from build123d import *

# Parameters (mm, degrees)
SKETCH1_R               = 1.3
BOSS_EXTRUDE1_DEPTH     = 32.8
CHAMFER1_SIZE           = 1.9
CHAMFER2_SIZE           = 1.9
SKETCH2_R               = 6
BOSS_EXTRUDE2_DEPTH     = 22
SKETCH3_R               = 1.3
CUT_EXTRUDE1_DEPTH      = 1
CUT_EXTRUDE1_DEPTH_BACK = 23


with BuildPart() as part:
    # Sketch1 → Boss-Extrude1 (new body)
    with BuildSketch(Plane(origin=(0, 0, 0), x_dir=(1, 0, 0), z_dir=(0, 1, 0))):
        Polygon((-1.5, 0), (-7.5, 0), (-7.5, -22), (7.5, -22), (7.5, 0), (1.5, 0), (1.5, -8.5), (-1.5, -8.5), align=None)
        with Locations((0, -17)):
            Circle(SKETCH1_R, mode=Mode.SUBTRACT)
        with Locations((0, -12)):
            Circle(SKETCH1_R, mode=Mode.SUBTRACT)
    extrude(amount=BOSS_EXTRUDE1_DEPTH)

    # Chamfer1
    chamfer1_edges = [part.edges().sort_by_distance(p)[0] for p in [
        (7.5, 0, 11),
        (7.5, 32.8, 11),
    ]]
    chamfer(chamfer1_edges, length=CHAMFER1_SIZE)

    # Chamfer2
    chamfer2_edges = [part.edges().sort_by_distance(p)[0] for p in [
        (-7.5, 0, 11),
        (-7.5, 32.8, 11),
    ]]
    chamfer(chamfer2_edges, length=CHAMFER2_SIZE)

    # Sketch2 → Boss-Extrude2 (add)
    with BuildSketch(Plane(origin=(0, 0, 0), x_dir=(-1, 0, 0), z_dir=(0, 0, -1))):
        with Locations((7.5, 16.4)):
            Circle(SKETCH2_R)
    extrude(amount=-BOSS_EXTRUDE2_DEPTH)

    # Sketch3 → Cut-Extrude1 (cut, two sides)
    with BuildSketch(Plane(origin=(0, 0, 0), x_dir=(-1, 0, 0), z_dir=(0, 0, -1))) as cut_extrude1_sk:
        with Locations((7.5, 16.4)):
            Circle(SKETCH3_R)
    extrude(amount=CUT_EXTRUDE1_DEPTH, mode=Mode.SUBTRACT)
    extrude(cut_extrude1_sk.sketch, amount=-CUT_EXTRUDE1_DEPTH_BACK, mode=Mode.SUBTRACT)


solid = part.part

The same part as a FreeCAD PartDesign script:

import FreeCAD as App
import Part
import Sketcher

V = App.Vector


def edges_at(feature, points):
    """Names of the edges that pass closest to the given points."""
    edges = feature.Shape.Edges
    near = lambda p: min(range(len(edges)), key=lambda i: edges[i].distToShape(Part.Vertex(*p))[0])
    return sorted({f"Edge{near(p) + 1}" for p in points})

doc = App.newDocument("Part")
params = doc.addObject("Spreadsheet::Sheet", "Params")
for row, (alias, value) in enumerate([
    ("sketch1_diameter", "2.6 mm"),
    ("sketch1_width", "6 mm"),
    ("sketch1_width2", "15 mm"),
    ("sketch1_height", "22 mm"),
    ("sketch1_height2", "8.5 mm"),
    ("pad1_length", "32.8 mm"),
    ("chamfer_size", "1.9 mm"),
    ("chamfer2_size", "1.9 mm"),
    ("sketch2_diameter", "12 mm"),
    ("pad2_length", "22 mm"),
    ("sketch3_diameter", "2.6 mm"),
], start=1):
    params.set(f"A{row}", alias)
    params.set(f"B{row}", "=" + value)
    params.setAlias(f"B{row}", alias)

body = doc.addObject("PartDesign::Body", "Body")

sketch1 = doc.addObject("Sketcher::SketchObject", "Sketch")
body.addObject(sketch1)
sketch1.AttachmentSupport = (doc.XZ_Plane, [""])
sketch1.MapMode = "FlatFace"
sketch1.addGeometry(Part.LineSegment(V(-1.5, 0, 0), V(-7.5, 0, 0)), False)
sketch1.addGeometry(Part.LineSegment(V(-7.5, 0, 0), V(-7.5, 22, 0)), False)
sketch1.addGeometry(Part.LineSegment(V(-7.5, 22, 0), V(7.5, 22, 0)), False)
sketch1.addGeometry(Part.LineSegment(V(7.5, 22, 0), V(7.5, 0, 0)), False)
sketch1.addGeometry(Part.LineSegment(V(7.5, 0, 0), V(1.5, 0, 0)), False)
sketch1.addGeometry(Part.LineSegment(V(1.5, 0, 0), V(1.5, 8.5, 0)), False)
sketch1.addGeometry(Part.LineSegment(V(1.5, 8.5, 0), V(-1.5, 8.5, 0)), False)
sketch1.addGeometry(Part.LineSegment(V(-1.5, 8.5, 0), V(-1.5, 0, 0)), False)
sketch1.addGeometry(Part.Circle(V(0, 17, 0), V(0, 0, 1), 1.3), False)
sketch1.addGeometry(Part.Circle(V(0, 12, 0), V(0, 0, 1), 1.3), False)
sketch1.addConstraint(Sketcher.Constraint("Coincident", 0, 2, 1, 1))
sketch1.addConstraint(Sketcher.Constraint("Coincident", 1, 2, 2, 1))
sketch1.addConstraint(Sketcher.Constraint("Coincident", 2, 2, 3, 1))
sketch1.addConstraint(Sketcher.Constraint("Coincident", 3, 2, 4, 1))
sketch1.addConstraint(Sketcher.Constraint("Coincident", 4, 2, 5, 1))
sketch1.addConstraint(Sketcher.Constraint("Coincident", 5, 2, 6, 1))
sketch1.addConstraint(Sketcher.Constraint("Coincident", 6, 2, 7, 1))
sketch1.addConstraint(Sketcher.Constraint("Coincident", 7, 2, 0, 1))
sketch1.addConstraint(Sketcher.Constraint("Horizontal", 0))
sketch1.addConstraint(Sketcher.Constraint("Vertical", 1))
sketch1.addConstraint(Sketcher.Constraint("Horizontal", 2))
sketch1.addConstraint(Sketcher.Constraint("Vertical", 3))
sketch1.addConstraint(Sketcher.Constraint("Horizontal", 4))
sketch1.addConstraint(Sketcher.Constraint("Vertical", 5))
sketch1.addConstraint(Sketcher.Constraint("Horizontal", 6))
sketch1.addConstraint(Sketcher.Constraint("Vertical", 7))
sketch1.addConstraint(Sketcher.Constraint("Equal", 8, 9))
sketch1.addConstraint(Sketcher.Constraint("Symmetric", 0, 2, 3, 2, -1, 1))
sketch1.addConstraint(Sketcher.Constraint("Symmetric", 4, 2, 7, 2, -2))
sketch1.addConstraint(Sketcher.Constraint("PointOnObject", 8, 3, -2))
sketch1.addConstraint(Sketcher.Constraint("PointOnObject", 9, 3, -2))
sketch1.addConstraint(Sketcher.Constraint("Diameter", 8, 2.6))
sketch1.addConstraint(Sketcher.Constraint("DistanceX", 0, 2, 0, 1, 6.0))
sketch1.addConstraint(Sketcher.Constraint("DistanceX", 2, 1, 2, 2, 15.0))
sketch1.addConstraint(Sketcher.Constraint("DistanceY", 1, 1, 1, 2, 22.0))
sketch1.addConstraint(Sketcher.Constraint("DistanceY", 5, 1, 5, 2, 8.5))
sketch1.addConstraint(Sketcher.Constraint("DistanceY", -1, 1, 8, 3, 17.0))
sketch1.addConstraint(Sketcher.Constraint("DistanceY", -1, 1, 9, 3, 12.0))
sketch1.setExpression("Constraints[21]", "Params.sketch1_diameter")
sketch1.setExpression("Constraints[22]", "Params.sketch1_width")
sketch1.setExpression("Constraints[23]", "Params.sketch1_width2")
sketch1.setExpression("Constraints[24]", "Params.sketch1_height")
sketch1.setExpression("Constraints[25]", "Params.sketch1_height2")
pad1 = doc.addObject("PartDesign::Pad", "Pad")
body.addObject(pad1)
pad1.Profile = sketch1
pad1.setExpression("Length", "Params.pad1_length")
pad1.Reversed = True
doc.recompute()

chamfer = doc.addObject("PartDesign::Chamfer", "Chamfer")
body.addObject(chamfer)
chamfer.Base = (pad1, edges_at(pad1, [(7.5, 0, 11), (7.5, 32.8, 11)]))
chamfer.setExpression("Size", "Params.chamfer_size")
doc.recompute()

chamfer2 = doc.addObject("PartDesign::Chamfer", "Chamfer001")
body.addObject(chamfer2)
chamfer2.Base = (chamfer, edges_at(chamfer, [(-7.5, 0, 11), (-7.5, 32.8, 11)]))
chamfer2.setExpression("Size", "Params.chamfer2_size")

sketch2 = doc.addObject("Sketcher::SketchObject", "Sketch001")
body.addObject(sketch2)
sketch2.AttachmentSupport = (doc.XY_Plane, [""])
sketch2.MapMode = "FlatFace"
sketch2.addGeometry(Part.Circle(V(-7.5, 16.4, 0), V(0, 0, 1), 6), False)
sketch2.addConstraint(Sketcher.Constraint("Diameter", 0, 12.0))
sketch2.addConstraint(Sketcher.Constraint("DistanceX", 0, 3, -1, 1, 7.5))
sketch2.addConstraint(Sketcher.Constraint("DistanceY", -1, 1, 0, 3, 16.4))
sketch2.setExpression("Constraints[0]", "Params.sketch2_diameter")
pad2 = doc.addObject("PartDesign::Pad", "Pad001")
body.addObject(pad2)
pad2.Profile = sketch2
pad2.setExpression("Length", "Params.pad2_length")

sketch3 = doc.addObject("Sketcher::SketchObject", "Sketch002")
body.addObject(sketch3)
sketch3.AttachmentSupport = (doc.XY_Plane, [""])
sketch3.MapMode = "FlatFace"
sketch3.addGeometry(Part.Circle(V(-7.5, 16.4, 0), V(0, 0, 1), 1.3), False)
sketch3.addConstraint(Sketcher.Constraint("Diameter", 0, 2.6))
sketch3.addConstraint(Sketcher.Constraint("DistanceX", 0, 3, -1, 1, 7.5))
sketch3.addConstraint(Sketcher.Constraint("DistanceY", -1, 1, 0, 3, 16.4))
sketch3.setExpression("Constraints[0]", "Params.sketch3_diameter")
pocket1 = doc.addObject("PartDesign::Pocket", "Pocket")
body.addObject(pocket1)
pocket1.Profile = sketch3
pocket1.Type = "ThroughAll"
pocket1.Midplane = True

doc.recompute()
